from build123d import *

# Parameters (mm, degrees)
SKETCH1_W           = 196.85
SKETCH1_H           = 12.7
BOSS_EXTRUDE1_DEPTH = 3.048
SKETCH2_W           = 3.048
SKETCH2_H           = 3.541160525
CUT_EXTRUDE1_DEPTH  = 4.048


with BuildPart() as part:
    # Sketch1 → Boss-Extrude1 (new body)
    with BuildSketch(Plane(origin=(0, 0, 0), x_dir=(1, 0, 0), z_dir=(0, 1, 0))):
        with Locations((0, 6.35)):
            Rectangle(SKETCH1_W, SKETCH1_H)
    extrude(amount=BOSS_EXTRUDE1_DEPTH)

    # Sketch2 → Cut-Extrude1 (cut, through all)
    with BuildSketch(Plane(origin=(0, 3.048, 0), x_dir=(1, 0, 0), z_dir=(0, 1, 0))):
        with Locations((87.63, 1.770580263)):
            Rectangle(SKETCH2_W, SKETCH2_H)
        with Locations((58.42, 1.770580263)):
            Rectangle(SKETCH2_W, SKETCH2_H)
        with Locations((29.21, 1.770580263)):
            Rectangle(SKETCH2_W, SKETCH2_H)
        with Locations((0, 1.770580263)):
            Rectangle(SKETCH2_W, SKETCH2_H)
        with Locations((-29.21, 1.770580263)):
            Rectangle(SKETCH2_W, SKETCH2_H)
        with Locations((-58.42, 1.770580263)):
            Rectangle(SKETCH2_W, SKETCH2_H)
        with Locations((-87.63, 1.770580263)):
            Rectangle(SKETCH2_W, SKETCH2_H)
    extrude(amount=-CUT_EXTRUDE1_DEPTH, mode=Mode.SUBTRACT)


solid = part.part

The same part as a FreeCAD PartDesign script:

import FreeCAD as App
import Part
import Sketcher
Q = App.Units.Quantity

doc = App.newDocument("Part")
body = doc.addObject("PartDesign::Body", "Body")

# Sketch on XZ plane
sketch1 = body.newObject("Sketcher::SketchObject", "Sketch")
sketch1.AttachmentSupport = (doc.getObject("XZ_Plane"), [""])
sketch1.MapMode = "FlatFace"
sketch1.addGeometry(Part.LineSegment(App.Vector(-98.425, -12.7, 0), App.Vector(-98.425, 0, 0)), False)
sketch1.addGeometry(Part.LineSegment(App.Vector(-98.425, 0, 0), App.Vector(98.425, 0, 0)), False)
sketch1.addGeometry(Part.LineSegment(App.Vector(98.425, 0, 0), App.Vector(98.425, -12.7, 0)), False)
sketch1.addGeometry(Part.LineSegment(App.Vector(98.425, -12.7, 0), App.Vector(-98.425, -12.7, 0)), False)
sketch1.addConstraint(Sketcher.Constraint("Coincident", 0, 2, 1, 1))
sketch1.addConstraint(Sketcher.Constraint("Coincident", 1, 2, 2, 1))
sketch1.addConstraint(Sketcher.Constraint("Coincident", 2, 2, 3, 1))
sketch1.addConstraint(Sketcher.Constraint("Coincident", 3, 2, 0, 1))
sketch1.addConstraint(Sketcher.Constraint("Vertical", 0))
sketch1.addConstraint(Sketcher.Constraint("Horizontal", 1))
sketch1.addConstraint(Sketcher.Constraint("Vertical", 2))
sketch1.addConstraint(Sketcher.Constraint("Horizontal", 3))
sketch1.addConstraint(Sketcher.Constraint("Symmetric", 0, 2, 1, 2, -1, 1))
sketch1.addConstraint(Sketcher.Constraint("DistanceY", 0, 1, 0, 2, Q("0.5 in")))
sketch1.addConstraint(Sketcher.Constraint("DistanceX", 1, 1, 1, 2, Q("7.75 in")))
pad1 = body.newObject("PartDesign::Pad", "Pad")
pad1.Profile = sketch1
pad1.Length = Q("0.12 in")
pad1.Reversed = True

# Sketch on XZ plane
sketch2 = body.newObject("Sketcher::SketchObject", "Sketch001")
sketch2.AttachmentSupport = (doc.getObject("XZ_Plane"), [""])
sketch2.MapMode = "FlatFace"
sketch2.AttachmentOffset = App.Placement(App.Vector(0, 0, -0.12 * 25.4), App.Rotation())
sketch2.addGeometry(Part.LineSegment(App.Vector(86.106, -3.541161, 0), App.Vector(86.106, 0, 0)), False)
sketch2.addGeometry(Part.LineSegment(App.Vector(86.106, 0, 0), App.Vector(89.154, 0, 0)), False)
sketch2.addGeometry(Part.LineSegment(App.Vector(89.154, 0, 0), App.Vector(89.154, -3.541161, 0)), False)
sketch2.addGeometry(Part.LineSegment(App.Vector(89.154, -3.541161, 0), App.Vector(86.106, -3.541161, 0)), False)
sketch2.addGeometry(Part.LineSegment(App.Vector(56.896, -3.541161, 0), App.Vector(56.896, 0, 0)), False)
sketch2.addGeometry(Part.LineSegment(App.Vector(56.896, 0, 0), App.Vector(59.944, 0, 0)), False)
sketch2.addGeometry(Part.LineSegment(App.Vector(59.944, 0, 0), App.Vector(59.944, -3.541161, 0)), False)
sketch2.addGeometry(Part.LineSegment(App.Vector(59.944, -3.541161, 0), App.Vector(56.896, -3.541161, 0)), False)
sketch2.addGeometry(Part.LineSegment(App.Vector(27.686, -3.541161, 0), App.Vector(27.686, 0, 0)), False)
sketch2.addGeometry(Part.LineSegment(App.Vector(27.686, 0, 0), App.Vector(30.734, 0, 0)), False)
sketch2.addGeometry(Part.LineSegment(App.Vector(30.734, 0, 0), App.Vector(30.734, -3.541161, 0)), False)
sketch2.addGeometry(Part.LineSegment(App.Vector(30.734, -3.541161, 0), App.Vector(27.686, -3.541161, 0)), False)
sketch2.addGeometry(Part.LineSegment(App.Vector(-1.524, -3.541161, 0), App.Vector(-1.524, 0, 0)), False)
sketch2.addGeometry(Part.LineSegment(App.Vector(-1.524, 0, 0), App.Vector(1.524, 0, 0)), False)
sketch2.addGeometry(Part.LineSegment(App.Vector(1.524, 0, 0), App.Vector(1.524, -3.541161, 0)), False)
sketch2.addGeometry(Part.LineSegment(App.Vector(1.524, -3.541161, 0), App.Vector(-1.524, -3.541161, 0)), False)
sketch2.addGeometry(Part.LineSegment(App.Vector(-30.734, -3.541161, 0), App.Vector(-30.734, 0, 0)), False)
sketch2.addGeometry(Part.LineSegment(App.Vector(-30.734, 0, 0), App.Vector(-27.686, 0, 0)), False)
sketch2.addGeometry(Part.LineSegment(App.Vector(-27.686, 0, 0), App.Vector(-27.686, -3.541161, 0)), False)
sketch2.addGeometry(Part.LineSegment(App.Vector(-27.686, -3.541161, 0), App.Vector(-30.734, -3.541161, 0)), False)
sketch2.addGeometry(Part.LineSegment(App.Vector(-59.944, -3.541161, 0), App.Vector(-59.944, 0, 0)), False)
sketch2.addGeometry(Part.LineSegment(App.Vector(-59.944, 0, 0), App.Vector(-56.896, 0, 0)), False)
sketch2.addGeometry(Part.LineSegment(App.Vector(-56.896, 0, 0), App.Vector(-56.896, -3.541161, 0)), False)
sketch2.addGeometry(Part.LineSegment(App.Vector(-56.896, -3.541161, 0), App.Vector(-59.944, -3.541161, 0)), False)
sketch2.addGeometry(Part.LineSegment(App.Vector(-89.154, -3.541161, 0), App.Vector(-89.154, 0, 0)), False)
sketch2.addGeometry(Part.LineSegment(App.Vector(-89.154, 0, 0), App.Vector(-86.106, 0, 0)), False)
sketch2.addGeometry(Part.LineSegment(App.Vector(-86.106, 0, 0), App.Vector(-86.106, -3.541161, 0)), False)
sketch2.addGeometry(Part.LineSegment(App.Vector(-86.106, -3.541161, 0), App.Vector(-89.154, -3.541161, 0)), False)
sketch2.addConstraint(Sketcher.Constraint("Coincident", 0, 2, 1, 1))
sketch2.addConstraint(Sketcher.Constraint("Coincident", 1, 2, 2, 1))
sketch2.addConstraint(Sketcher.Constraint("Coincident", 2, 2, 3, 1))
sketch2.addConstraint(Sketcher.Constraint("Coincident", 3, 2, 0, 1))
sketch2.addConstraint(Sketcher.Constraint("Coincident", 4, 2, 5, 1))
sketch2.addConstraint(Sketcher.Constraint("Coincident", 5, 2, 6, 1))
sketch2.addConstraint(Sketcher.Constraint("Coincident", 6, 2, 7, 1))
sketch2.addConstraint(Sketcher.Constraint("Coincident", 7, 2, 4, 1))
sketch2.addConstraint(Sketcher.Constraint("Coincident", 8, 2, 9, 1))
sketch2.addConstraint(Sketcher.Constraint("Coincident", 9, 2, 10, 1))
sketch2.addConstraint(Sketcher.Constraint("Coincident", 10, 2, 11, 1))
sketch2.addConstraint(Sketcher.Constraint("Coincident", 11, 2, 8, 1))
sketch2.addConstraint(Sketcher.Constraint("Coincident", 12, 2, 13, 1))
sketch2.addConstraint(Sketcher.Constraint("Coincident", 13, 2, 14, 1))
sketch2.addConstraint(Sketcher.Constraint("Coincident", 14, 2, 15, 1))
sketch2.addConstraint(Sketcher.Constraint("Coincident", 15, 2, 12, 1))
sketch2.addConstraint(Sketcher.Constraint("Coincident", 16, 2, 17, 1))
sketch2.addConstraint(Sketcher.Constraint("Coincident", 17, 2, 18, 1))
sketch2.addConstraint(Sketcher.Constraint("Coincident", 18, 2, 19, 1))
sketch2.addConstraint(Sketcher.Constraint("Coincident", 19, 2, 16, 1))
sketch2.addConstraint(Sketcher.Constraint("Coincident", 20, 2, 21, 1))
sketch2.addConstraint(Sketcher.Constraint("Coincident", 21, 2, 22, 1))
sketch2.addConstraint(Sketcher.Constraint("Coincident", 22, 2, 23, 1))
sketch2.addConstraint(Sketcher.Constraint("Coincident", 23, 2, 20, 1))
sketch2.addConstraint(Sketcher.Constraint("Coincident", 24, 2, 25, 1))
sketch2.addConstraint(Sketcher.Constraint("Coincident", 25, 2, 26, 1))
sketch2.addConstraint(Sketcher.Constraint("Coincident", 26, 2, 27, 1))
sketch2.addConstraint(Sketcher.Constraint("Coincident", 27, 2, 24, 1))
sketch2.addConstraint(Sketcher.Constraint("Vertical", 0))
sketch2.addConstraint(Sketcher.Constraint("Horizontal", 1))
sketch2.addConstraint(Sketcher.Constraint("Vertical", 2))
sketch2.addConstraint(Sketcher.Constraint("Horizontal", 3))
sketch2.addConstraint(Sketcher.Constraint("Vertical", 4))
sketch2.addConstraint(Sketcher.Constraint("Horizontal", 5))
sketch2.addConstraint(Sketcher.Constraint("Vertical", 6))
sketch2.addConstraint(Sketcher.Constraint("Horizontal", 7))
sketch2.addConstraint(Sketcher.Constraint("Vertical", 8))
sketch2.addConstraint(Sketcher.Constraint("Horizontal", 9))
sketch2.addConstraint(Sketcher.Constraint("Vertical", 10))
sketch2.addConstraint(Sketcher.Constraint("Horizontal", 11))
sketch2.addConstraint(Sketcher.Constraint("Vertical", 12))
sketch2.addConstraint(Sketcher.Constraint("Horizontal", 13))
sketch2.addConstraint(Sketcher.Constraint("Vertical", 14))
sketch2.addConstraint(Sketcher.Constraint("Horizontal", 15))
sketch2.addConstraint(Sketcher.Constraint("Vertical", 16))
sketch2.addConstraint(Sketcher.Constraint("Horizontal", 17))
sketch2.addConstraint(Sketcher.Constraint("Vertical", 18))
sketch2.addConstraint(Sketcher.Constraint("Horizontal", 19))
sketch2.addConstraint(Sketcher.Constraint("Vertical", 20))
sketch2.addConstraint(Sketcher.Constraint("Horizontal", 21))
sketch2.addConstraint(Sketcher.Constraint("Vertical", 22))
sketch2.addConstraint(Sketcher.Constraint("Horizontal", 23))
sketch2.addConstraint(Sketcher.Constraint("Vertical", 24))
sketch2.addConstraint(Sketcher.Constraint("Horizontal", 25))
sketch2.addConstraint(Sketcher.Constraint("Vertical", 26))
sketch2.addConstraint(Sketcher.Constraint("Horizontal", 27))
sketch2.addConstraint(Sketcher.Constraint("Symmetric", 12, 2, 13, 2, -1, 1))
sketch2.addConstraint(Sketcher.Constraint("Symmetric", 9, 2, 16, 2, -1, 1))
sketch2.addConstraint(Sketcher.Constraint("Symmetric", 5, 2, 20, 2, -1, 1))
sketch2.addConstraint(Sketcher.Constraint("Symmetric", 1, 2, 24, 2, -1, 1))
sketch2.addConstraint(Sketcher.Constraint("Symmetric", 8, 2, 17, 2, -2))
sketch2.addConstraint(Sketcher.Constraint("Symmetric", 4, 2, 21, 2, -2))
sketch2.addConstraint(Sketcher.Constraint("Symmetric", 0, 2, 25, 2, -2))
sketch2.addConstraint(Sketcher.Constraint("Horizontal", 3, 2, 6, 2))
sketch2.addConstraint(Sketcher.Constraint("Horizontal", 7, 2, 10, 2))
sketch2.addConstraint(Sketcher.Constraint("Horizontal", 11, 2, 14, 2))
sketch2.addConstraint(Sketcher.Constraint("Horizontal", 15, 2, 18, 2))
sketch2.addConstraint(Sketcher.Constraint("Horizontal", 19, 2, 22, 2))
sketch2.addConstraint(Sketcher.Constraint("Horizontal", 23, 2, 26, 2))
sketch2.addConstraint(Sketcher.Constraint("Equal", 3, 5))
sketch2.addConstraint(Sketcher.Constraint("Equal", 7, 9))
sketch2.addConstraint(Sketcher.Constraint("Equal", 11, 13))
sketch2.addConstraint(Sketcher.Constraint("DistanceX", 1, 1, 1, 2, Q("0.12 in")))
sketch2.addConstraint(Sketcher.Constraint("DistanceX", 8, 2, 0, 2, Q("2.3 in")))
sketch2.addConstraint(Sketcher.Constraint("DistanceX", 12, 2, 4, 2, Q("2.3 in")))
sketch2.addConstraint(Sketcher.Constraint("DistanceX", 16, 2, 8, 2, Q("2.3 in")))
sketch2.addConstraint(Sketcher.Constraint("DistanceY", 0, 1, 0, 2, Q("3.541161 mm")))
pocket1 = body.newObject("PartDesign::Pocket", "Pocket")
pocket1.Profile = sketch2
pocket1.Type = "ThroughAll"
pocket1.Reversed = True

doc.recompute()
